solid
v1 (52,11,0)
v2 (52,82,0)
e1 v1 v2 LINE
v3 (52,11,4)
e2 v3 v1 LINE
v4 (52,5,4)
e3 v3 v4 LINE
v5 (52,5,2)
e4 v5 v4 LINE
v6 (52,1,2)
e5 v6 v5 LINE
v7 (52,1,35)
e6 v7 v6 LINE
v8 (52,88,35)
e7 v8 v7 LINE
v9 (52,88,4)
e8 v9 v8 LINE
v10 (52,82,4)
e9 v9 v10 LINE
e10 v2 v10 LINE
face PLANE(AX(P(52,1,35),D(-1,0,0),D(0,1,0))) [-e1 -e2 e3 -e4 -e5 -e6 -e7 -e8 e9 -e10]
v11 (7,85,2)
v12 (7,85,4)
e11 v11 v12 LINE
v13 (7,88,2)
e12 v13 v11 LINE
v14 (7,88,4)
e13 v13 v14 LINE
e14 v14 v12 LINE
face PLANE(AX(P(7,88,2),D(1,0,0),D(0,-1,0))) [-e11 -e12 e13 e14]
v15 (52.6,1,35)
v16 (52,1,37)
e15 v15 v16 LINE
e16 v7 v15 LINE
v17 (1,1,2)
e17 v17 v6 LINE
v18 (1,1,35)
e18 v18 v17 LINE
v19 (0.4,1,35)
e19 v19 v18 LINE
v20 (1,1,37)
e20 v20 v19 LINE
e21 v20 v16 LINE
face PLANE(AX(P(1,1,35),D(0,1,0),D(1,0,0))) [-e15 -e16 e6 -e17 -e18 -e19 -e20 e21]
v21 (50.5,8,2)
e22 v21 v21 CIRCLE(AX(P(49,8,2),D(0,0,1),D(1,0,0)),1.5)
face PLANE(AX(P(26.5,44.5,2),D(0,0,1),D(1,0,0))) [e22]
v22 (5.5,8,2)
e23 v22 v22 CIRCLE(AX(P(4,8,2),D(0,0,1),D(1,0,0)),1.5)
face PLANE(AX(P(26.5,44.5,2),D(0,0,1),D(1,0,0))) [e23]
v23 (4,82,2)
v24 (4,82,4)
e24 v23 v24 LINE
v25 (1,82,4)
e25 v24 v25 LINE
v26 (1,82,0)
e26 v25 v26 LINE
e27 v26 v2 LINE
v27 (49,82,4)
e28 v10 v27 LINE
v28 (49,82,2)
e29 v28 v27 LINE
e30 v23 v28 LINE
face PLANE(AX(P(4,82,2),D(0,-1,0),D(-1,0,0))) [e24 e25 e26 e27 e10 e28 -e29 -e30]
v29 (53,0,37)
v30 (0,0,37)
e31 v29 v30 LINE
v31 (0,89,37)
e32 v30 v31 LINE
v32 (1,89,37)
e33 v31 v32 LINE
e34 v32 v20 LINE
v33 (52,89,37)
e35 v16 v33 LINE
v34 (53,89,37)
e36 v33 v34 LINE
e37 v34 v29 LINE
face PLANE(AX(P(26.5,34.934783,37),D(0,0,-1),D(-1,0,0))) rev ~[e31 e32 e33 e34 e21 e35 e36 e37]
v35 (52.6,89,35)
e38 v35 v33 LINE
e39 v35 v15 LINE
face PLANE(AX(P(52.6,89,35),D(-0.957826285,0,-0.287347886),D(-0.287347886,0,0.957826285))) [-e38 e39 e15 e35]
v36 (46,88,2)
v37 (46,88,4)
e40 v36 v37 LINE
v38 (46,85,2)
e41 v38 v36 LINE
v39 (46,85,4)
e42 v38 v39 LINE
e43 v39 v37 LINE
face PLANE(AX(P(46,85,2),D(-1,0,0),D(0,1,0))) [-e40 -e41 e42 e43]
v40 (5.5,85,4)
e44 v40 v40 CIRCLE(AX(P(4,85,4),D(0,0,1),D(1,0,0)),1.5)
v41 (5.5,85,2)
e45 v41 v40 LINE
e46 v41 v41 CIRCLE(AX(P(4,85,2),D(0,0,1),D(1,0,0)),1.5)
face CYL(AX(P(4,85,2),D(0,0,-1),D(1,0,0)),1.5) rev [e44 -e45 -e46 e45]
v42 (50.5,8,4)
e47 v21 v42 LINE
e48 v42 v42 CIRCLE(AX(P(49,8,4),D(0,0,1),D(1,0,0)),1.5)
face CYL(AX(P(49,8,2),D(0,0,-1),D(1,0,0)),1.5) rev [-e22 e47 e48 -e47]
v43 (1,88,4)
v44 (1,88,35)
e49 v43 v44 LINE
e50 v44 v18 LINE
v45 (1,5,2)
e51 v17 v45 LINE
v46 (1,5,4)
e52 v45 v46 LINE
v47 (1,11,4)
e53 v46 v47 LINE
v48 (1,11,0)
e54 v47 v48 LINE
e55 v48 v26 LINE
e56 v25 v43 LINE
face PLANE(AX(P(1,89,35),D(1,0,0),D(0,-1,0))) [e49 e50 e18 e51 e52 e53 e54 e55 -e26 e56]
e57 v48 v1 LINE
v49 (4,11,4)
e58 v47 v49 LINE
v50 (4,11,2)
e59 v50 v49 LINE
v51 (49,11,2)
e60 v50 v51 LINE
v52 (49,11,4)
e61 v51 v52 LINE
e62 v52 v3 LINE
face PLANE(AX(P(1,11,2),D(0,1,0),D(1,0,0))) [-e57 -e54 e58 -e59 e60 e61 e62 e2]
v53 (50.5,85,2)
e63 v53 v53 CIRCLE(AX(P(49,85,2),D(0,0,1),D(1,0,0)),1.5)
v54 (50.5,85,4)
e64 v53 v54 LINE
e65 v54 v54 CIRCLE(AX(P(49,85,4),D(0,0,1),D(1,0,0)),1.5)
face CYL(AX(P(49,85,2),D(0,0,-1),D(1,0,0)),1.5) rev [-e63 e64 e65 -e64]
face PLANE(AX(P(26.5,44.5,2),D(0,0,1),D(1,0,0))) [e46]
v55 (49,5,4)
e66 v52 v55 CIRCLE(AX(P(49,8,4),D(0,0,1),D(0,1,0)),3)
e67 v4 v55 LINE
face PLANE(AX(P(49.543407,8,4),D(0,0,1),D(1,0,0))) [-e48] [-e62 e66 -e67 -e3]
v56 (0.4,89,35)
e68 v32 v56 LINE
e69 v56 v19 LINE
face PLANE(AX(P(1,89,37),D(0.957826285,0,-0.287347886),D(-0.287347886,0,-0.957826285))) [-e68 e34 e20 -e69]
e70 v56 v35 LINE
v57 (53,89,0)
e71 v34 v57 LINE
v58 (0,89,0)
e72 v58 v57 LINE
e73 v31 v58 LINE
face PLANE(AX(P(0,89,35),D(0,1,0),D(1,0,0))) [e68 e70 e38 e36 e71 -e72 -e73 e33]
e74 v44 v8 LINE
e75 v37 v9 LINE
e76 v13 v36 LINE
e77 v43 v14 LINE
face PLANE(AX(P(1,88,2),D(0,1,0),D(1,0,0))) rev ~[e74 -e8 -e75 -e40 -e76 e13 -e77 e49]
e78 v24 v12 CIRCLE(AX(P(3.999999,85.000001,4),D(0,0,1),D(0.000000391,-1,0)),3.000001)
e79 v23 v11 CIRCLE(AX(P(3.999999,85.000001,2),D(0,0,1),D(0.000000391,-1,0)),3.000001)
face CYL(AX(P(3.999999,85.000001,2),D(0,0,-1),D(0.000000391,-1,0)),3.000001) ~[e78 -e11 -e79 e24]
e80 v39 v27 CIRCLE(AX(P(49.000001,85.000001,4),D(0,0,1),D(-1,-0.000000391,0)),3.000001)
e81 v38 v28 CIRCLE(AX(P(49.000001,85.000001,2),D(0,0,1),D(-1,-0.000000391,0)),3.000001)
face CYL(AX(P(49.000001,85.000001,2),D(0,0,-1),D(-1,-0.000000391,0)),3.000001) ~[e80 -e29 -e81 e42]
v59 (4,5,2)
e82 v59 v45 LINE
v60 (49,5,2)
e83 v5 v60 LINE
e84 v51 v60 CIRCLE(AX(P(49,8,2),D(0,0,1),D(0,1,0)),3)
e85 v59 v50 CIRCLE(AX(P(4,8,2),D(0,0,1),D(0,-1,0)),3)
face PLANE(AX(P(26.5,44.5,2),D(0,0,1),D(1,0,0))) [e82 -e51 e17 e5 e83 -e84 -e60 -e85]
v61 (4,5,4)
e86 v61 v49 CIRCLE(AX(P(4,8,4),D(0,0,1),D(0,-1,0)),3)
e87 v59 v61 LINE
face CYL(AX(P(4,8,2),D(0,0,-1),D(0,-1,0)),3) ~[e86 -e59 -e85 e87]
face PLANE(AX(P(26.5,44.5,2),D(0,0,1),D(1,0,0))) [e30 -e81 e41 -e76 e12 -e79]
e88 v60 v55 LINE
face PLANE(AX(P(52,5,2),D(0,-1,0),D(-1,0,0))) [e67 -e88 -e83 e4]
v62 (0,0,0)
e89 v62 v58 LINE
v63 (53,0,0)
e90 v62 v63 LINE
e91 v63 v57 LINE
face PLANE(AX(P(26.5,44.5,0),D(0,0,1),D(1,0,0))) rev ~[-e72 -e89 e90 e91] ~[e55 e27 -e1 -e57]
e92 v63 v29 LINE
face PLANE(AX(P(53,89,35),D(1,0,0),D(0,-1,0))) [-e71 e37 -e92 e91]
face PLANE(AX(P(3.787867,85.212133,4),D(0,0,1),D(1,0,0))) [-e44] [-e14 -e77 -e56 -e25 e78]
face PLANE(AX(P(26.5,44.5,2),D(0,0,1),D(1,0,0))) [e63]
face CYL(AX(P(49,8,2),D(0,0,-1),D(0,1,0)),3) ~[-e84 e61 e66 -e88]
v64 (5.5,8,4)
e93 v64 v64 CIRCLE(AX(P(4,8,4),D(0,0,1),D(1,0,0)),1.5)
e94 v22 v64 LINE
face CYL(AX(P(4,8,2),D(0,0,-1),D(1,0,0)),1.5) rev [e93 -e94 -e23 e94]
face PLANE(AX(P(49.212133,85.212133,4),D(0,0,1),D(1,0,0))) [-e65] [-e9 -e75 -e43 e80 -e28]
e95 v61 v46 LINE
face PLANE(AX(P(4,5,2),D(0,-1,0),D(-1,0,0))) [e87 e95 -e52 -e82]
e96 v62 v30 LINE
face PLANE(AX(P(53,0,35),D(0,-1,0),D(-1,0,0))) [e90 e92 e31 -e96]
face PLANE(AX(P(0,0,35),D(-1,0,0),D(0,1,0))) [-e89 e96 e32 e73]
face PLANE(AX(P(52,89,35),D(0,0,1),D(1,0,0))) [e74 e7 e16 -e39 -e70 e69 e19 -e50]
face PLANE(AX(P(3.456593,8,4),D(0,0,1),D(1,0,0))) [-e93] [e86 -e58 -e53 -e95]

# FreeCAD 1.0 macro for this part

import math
import FreeCAD as App
import Part
import Sketcher

V = App.Vector


def add_polygon(sketch, points):
    """Adds a closed chain of lines whose ends are joined by coincident constraints."""
    first, n = sketch.GeometryCount, len(points)
    for a, b in zip(points, points[1:] + points[:1]):
        sketch.addGeometry(Part.LineSegment(App.Vector(*a, 0), App.Vector(*b, 0)), False)
    for i in range(n):
        sketch.addConstraint(Sketcher.Constraint("Coincident", first + i, 2, first + (i + 1) % n, 1))

doc = App.newDocument("Part")
body = doc.addObject("PartDesign::Body", "Body")

sketch1 = doc.addObject("Sketcher::SketchObject", "Sketch")
body.addObject(sketch1)
sketch1.AttachmentSupport = (doc.XY_Plane, [""])
sketch1.MapMode = "FlatFace"
add_polygon(sketch1, [(0, 89), (0, 0), (53, 0), (53, 89)])
sketch1.addConstraint([
    Sketcher.Constraint("Vertical", 0),
    Sketcher.Constraint("Horizontal", 1),
    Sketcher.Constraint("Vertical", 2),
    Sketcher.Constraint("Horizontal", 3),
    Sketcher.Constraint("Coincident", 0, 2, -1, 1),
    Sketcher.Constraint("DistanceX", 1, 1, 1, 2, 53.0),
    Sketcher.Constraint("DistanceY", 0, 2, 0, 1, 89.0),
])
pad1 = doc.addObject("PartDesign::Pad", "Pad")
body.addObject(pad1)
pad1.Profile = sketch1
pad1.Length = 2

sketch2 = doc.addObject("Sketcher::SketchObject", "Sketch001")
body.addObject(sketch2)
sketch2.AttachmentSupport = (doc.XY_Plane, [""])
sketch2.MapMode = "FlatFace"
sketch2.AttachmentOffset = App.Placement(V(0, 0, 2), App.Rotation())
add_polygon(sketch2, [(1, 82), (1, 11), (52, 11), (52, 82)])
sketch2.addConstraint([
    Sketcher.Constraint("Vertical", 0),
    Sketcher.Constraint("Horizontal", 1),
    Sketcher.Constraint("Vertical", 2),
    Sketcher.Constraint("Horizontal", 3),
    Sketcher.Constraint("DistanceX", 1, 1, 1, 2, 51.0),
    Sketcher.Constraint("DistanceY", 0, 2, 0, 1, 71.0),
    Sketcher.Constraint("DistanceX", -1, 1, 0, 2, 1.0),
    Sketcher.Constraint("DistanceY", -1, 1, 0, 2, 11.0),
])
pocket1 = doc.addObject("PartDesign::Pocket", "Pocket")
body.addObject(pocket1)
pocket1.Profile = sketch2
pocket1.Length = 2

sketch3 = doc.addObject("Sketcher::SketchObject", "Sketch002")
body.addObject(sketch3)
sketch3.AttachmentSupport = (doc.XY_Plane, [""])
sketch3.MapMode = "FlatFace"
sketch3.AttachmentOffset = App.Placement(V(0, 0, 2), App.Rotation())
add_polygon(sketch3, [(0, 89), (0, 0), (53, 0), (53, 89)])
add_polygon(sketch3, [(52, 1), (1, 1), (1, 88), (52, 88)])
sketch3.addConstraint([
    Sketcher.Constraint("Vertical", 0),
    Sketcher.Constraint("Horizontal", 1),
    Sketcher.Constraint("Vertical", 2),
    Sketcher.Constraint("Horizontal", 3),
    Sketcher.Constraint("Horizontal", 4),
    Sketcher.Constraint("Vertical", 5),
    Sketcher.Constraint("Horizontal", 6),
    Sketcher.Constraint("Vertical", 7),
    Sketcher.Constraint("Coincident", 0, 2, -1, 1),
    Sketcher.Constraint("DistanceX", 1, 1, 1, 2, 53.0),
    Sketcher.Constraint("DistanceX", 4, 2, 4, 1, 51.0),
    Sketcher.Constraint("DistanceY", 0, 2, 0, 1, 89.0),
    Sketcher.Constraint("DistanceY", 5, 1, 5, 2, 87.0),
    Sketcher.Constraint("DistanceX", -1, 1, 4, 2, 1.0),
    Sketcher.Constraint("DistanceY", -1, 1, 4, 2, 1.0),
])
pad2 = doc.addObject("PartDesign::Pad", "Pad001")
body.addObject(pad2)
pad2.Profile = sketch3
pad2.Length = 33

sketch4 = doc.addObject("Sketcher::SketchObject", "Sketch003")
body.addObject(sketch4)
sketch4.AttachmentSupport = (doc.XY_Plane, [""])
sketch4.MapMode = "FlatFace"
sketch4.AttachmentOffset = App.Placement(V(0, 0, 2), App.Rotation())
sketch4.addGeometry([
    Part.ArcOfCircle(Part.Circle(V(3.999999, 85.000001, 0), V(0, 0, 1), 3.000001), math.radians(-89.999978), math.radians(-0.000022)),
    Part.LineSegment(V(7, 85, 0), V(7, 88, 0)),
    Part.LineSegment(V(7, 88, 0), V(1, 88, 0)),
    Part.LineSegment(V(1, 88, 0), V(1, 82, 0)),
    Part.LineSegment(V(1, 82, 0), V(4, 82, 0)),
    Part.Circle(V(4, 85, 0), V(0, 0, 1), 1.5),
    Part.ArcOfCircle(Part.Circle(V(49.000001, 85.000001, 0), V(0, 0, 1), 3.000001), math.radians(-179.999978), math.radians(-90.000022)),
    Part.LineSegment(V(49, 82, 0), V(52, 82, 0)),
    Part.LineSegment(V(52, 82, 0), V(52, 88, 0)),
    Part.LineSegment(V(52, 88, 0), V(46, 88, 0)),
    Part.LineSegment(V(46, 88, 0), V(46, 85, 0)),
    Part.Circle(V(49, 85, 0), V(0, 0, 1), 1.5),
    Part.ArcOfCircle(Part.Circle(V(49, 8, 0), V(0, 0, 1), 3), math.radians(90), math.radians(270)),
    Part.LineSegment(V(49, 5, 0), V(52, 5, 0)),
    Part.LineSegment(V(52, 5, 0), V(52, 11, 0)),
    Part.LineSegment(V(52, 11, 0), V(49, 11, 0)),
    Part.Circle(V(49, 8, 0), V(0, 0, 1), 1.5),
    Part.ArcOfCircle(Part.Circle(V(4, 8, 0), V(0, 0, 1), 3), math.radians(-90), math.radians(90)),
    Part.LineSegment(V(4, 11, 0), V(1, 11, 0)),
    Part.LineSegment(V(1, 11, 0), V(1, 5, 0)),
    Part.LineSegment(V(1, 5, 0), V(4, 5, 0)),
    Part.Circle(V(4, 8, 0), V(0, 0, 1), 1.5),
], False)
sketch4.addConstraint([
    Sketcher.Constraint("Tangent", 0, 2, 1, 1),
    Sketcher.Constraint("Coincident", 1, 2, 2, 1),
    Sketcher.Constraint("Coincident", 2, 2, 3, 1),
    Sketcher.Constraint("Coincident", 3, 2, 4, 1),
    Sketcher.Constraint("Tangent", 4, 2, 0, 1),
    Sketcher.Constraint("Tangent", 6, 2, 7, 1),
    Sketcher.Constraint("Coincident", 7, 2, 8, 1),
    Sketcher.Constraint("Coincident", 8, 2, 9, 1),
    Sketcher.Constraint("Coincident", 9, 2, 10, 1),
    Sketcher.Constraint("Tangent", 10, 2, 6, 1),
    Sketcher.Constraint("Tangent", 12, 2, 13, 1),
    Sketcher.Constraint("Coincident", 13, 2, 14, 1),
    Sketcher.Constraint("Coincident", 14, 2, 15, 1),
    Sketcher.Constraint("Tangent", 15, 2, 12, 1),
    Sketcher.Constraint("Tangent", 17, 2, 18, 1),
    Sketcher.Constraint("Coincident", 18, 2, 19, 1),
    Sketcher.Constraint("Coincident", 19, 2, 20, 1),
    Sketcher.Constraint("Tangent", 20, 2, 17, 1),
    Sketcher.Constraint("Vertical", 1),
    Sketcher.Constraint("Horizontal", 2),
    Sketcher.Constraint("Vertical", 3),
    Sketcher.Constraint("Horizontal", 4),
    Sketcher.Constraint("Horizontal", 7),
    Sketcher.Constraint("Vertical", 8),
    Sketcher.Constraint("Horizontal", 9),
    Sketcher.Constraint("Vertical", 10),
    Sketcher.Constraint("Horizontal", 13),
    Sketcher.Constraint("Vertical", 14),
    Sketcher.Constraint("Horizontal", 15),
    Sketcher.Constraint("Horizontal", 18),
    Sketcher.Constraint("Vertical", 19),
    Sketcher.Constraint("Horizontal", 20),
    Sketcher.Constraint("Coincident", 5, 3, 0, 3),
    Sketcher.Constraint("Coincident", 11, 3, 6, 3),
    Sketcher.Constraint("Coincident", 16, 3, 12, 3),
    Sketcher.Constraint("Coincident", 21, 3, 17, 3),
    Sketcher.Constraint("Equal", 0, 6),
    Sketcher.Constraint("Equal", 5, 11),
    Sketcher.Constraint("Equal", 6, 12),
    Sketcher.Constraint("Equal", 11, 16),
    Sketcher.Constraint("Equal", 12, 17),
    Sketcher.Constraint("Equal", 16, 21),
    Sketcher.Constraint("Horizontal", 5, 3, 6, 3),
    Sketcher.Constraint("Horizontal", 16, 3, 17, 3),
    Sketcher.Constraint("Horizontal", 2, 2, 8, 2),
    Sketcher.Constraint("Vertical", 11, 3, 12, 3),
    Sketcher.Constraint("Vertical", 5, 3, 17, 3),
    Sketcher.Constraint("Vertical", 8, 2, 13, 2),
    Sketcher.Constraint("Vertical", 3, 2, 18, 2),
    Sketcher.Constraint("Equal", 4, 7),
    Sketcher.Constraint("Equal", 20, 1),
    Sketcher.Constraint("Equal", 8, 14),
    Sketcher.Constraint("Diameter", 5, 3.0),
    Sketcher.Constraint("Radius", 0, 3.000001),
    Sketcher.Constraint("DistanceX", -1, 1, 0, 3, 3.999999),
    Sketcher.Constraint("DistanceY", -1, 1, 0, 3, 85.000001),
    Sketcher.Constraint("DistanceX", -1, 1, 6, 3, 49.000001),
    Sketcher.Constraint("DistanceY", -1, 1, 12, 3, 8.0),
])
pad3 = doc.addObject("PartDesign::Pad", "Pad002")
body.addObject(pad3)
pad3.Profile = sketch4
pad3.Length = 2

sketch5 = doc.addObject("Sketcher::SketchObject", "Sketch004")
body.addObject(sketch5)
sketch5.AttachmentSupport = (doc.XY_Plane, [""])
sketch5.MapMode = "FlatFace"
sketch5.AttachmentOffset = App.Placement(V(0, 0, 35), App.Rotation())
add_polygon(sketch5, [(0, 89), (0, 0), (53, 0), (53, 89), (52, 89), (52, 1), (1, 1), (1, 89)])
sketch5.addConstraint([
    Sketcher.Constraint("Vertical", 0),
    Sketcher.Constraint("Horizontal", 1),
    Sketcher.Constraint("Vertical", 2),
    Sketcher.Constraint("Horizontal", 3),
    Sketcher.Constraint("Vertical", 4),
    Sketcher.Constraint("Horizontal", 5),
    Sketcher.Constraint("Vertical", 6),
    Sketcher.Constraint("Horizontal", 7),
    Sketcher.Constraint("Coincident", 0, 2, -1, 1),
    Sketcher.Constraint("Horizontal", 3, 2, 6, 2),
    Sketcher.Constraint("Equal", 3, 7),
    Sketcher.Constraint("DistanceX", 1, 1, 1, 2, 53.0),
    Sketcher.Constraint("DistanceX", 3, 2, 3, 1, 1.0),
    Sketcher.Constraint("DistanceY", 0, 2, 0, 1, 89.0),
    Sketcher.Constraint("DistanceY", 4, 2, 4, 1, 88.0),
])
pad4 = doc.addObject("PartDesign::Pad", "Pad003")
body.addObject(pad4)
pad4.Profile = sketch5
pad4.Length = 2

sketch6 = doc.addObject("Sketcher::SketchObject", "Sketch005")
body.addObject(sketch6)
sketch6.AttachmentSupport = (doc.XZ_Plane, [""])
sketch6.MapMode = "FlatFace"
sketch6.AttachmentOffset = App.Placement(V(0, 0, -89), App.Rotation())
add_polygon(sketch6, [(52, 37), (52.6, 35), (52, 35)])
add_polygon(sketch6, [(1, 37), (1, 35), (0.4, 35)])
sketch6.addConstraint([
    Sketcher.Constraint("Horizontal", 1),
    Sketcher.Constraint("Vertical", 2),
    Sketcher.Constraint("Vertical", 3),
    Sketcher.Constraint("Horizontal", 4),
    Sketcher.Constraint("Horizontal", 1, 2, 3, 2),
    Sketcher.Constraint("Horizontal", 2, 2, 5, 2),
    Sketcher.Constraint("Equal", 1, 4),
    Sketcher.Constraint("DistanceY", 2, 1, 2, 2, 2.0),
    Sketcher.Constraint("DistanceX", 1, 2, 1, 1, 0.6),
    Sketcher.Constraint("DistanceY", -1, 1, 0, 2, 35.0),
    Sketcher.Constraint("DistanceX", -1, 1, 1, 2, 52.0),
    Sketcher.Constraint("DistanceX", -1, 1, 3, 2, 1.0),
])
pocket2 = doc.addObject("PartDesign::Pocket", "Pocket001")
body.addObject(pocket2)
pocket2.Profile = sketch6
pocket2.Length = 88
pocket2.Reversed = True

doc.recompute()
